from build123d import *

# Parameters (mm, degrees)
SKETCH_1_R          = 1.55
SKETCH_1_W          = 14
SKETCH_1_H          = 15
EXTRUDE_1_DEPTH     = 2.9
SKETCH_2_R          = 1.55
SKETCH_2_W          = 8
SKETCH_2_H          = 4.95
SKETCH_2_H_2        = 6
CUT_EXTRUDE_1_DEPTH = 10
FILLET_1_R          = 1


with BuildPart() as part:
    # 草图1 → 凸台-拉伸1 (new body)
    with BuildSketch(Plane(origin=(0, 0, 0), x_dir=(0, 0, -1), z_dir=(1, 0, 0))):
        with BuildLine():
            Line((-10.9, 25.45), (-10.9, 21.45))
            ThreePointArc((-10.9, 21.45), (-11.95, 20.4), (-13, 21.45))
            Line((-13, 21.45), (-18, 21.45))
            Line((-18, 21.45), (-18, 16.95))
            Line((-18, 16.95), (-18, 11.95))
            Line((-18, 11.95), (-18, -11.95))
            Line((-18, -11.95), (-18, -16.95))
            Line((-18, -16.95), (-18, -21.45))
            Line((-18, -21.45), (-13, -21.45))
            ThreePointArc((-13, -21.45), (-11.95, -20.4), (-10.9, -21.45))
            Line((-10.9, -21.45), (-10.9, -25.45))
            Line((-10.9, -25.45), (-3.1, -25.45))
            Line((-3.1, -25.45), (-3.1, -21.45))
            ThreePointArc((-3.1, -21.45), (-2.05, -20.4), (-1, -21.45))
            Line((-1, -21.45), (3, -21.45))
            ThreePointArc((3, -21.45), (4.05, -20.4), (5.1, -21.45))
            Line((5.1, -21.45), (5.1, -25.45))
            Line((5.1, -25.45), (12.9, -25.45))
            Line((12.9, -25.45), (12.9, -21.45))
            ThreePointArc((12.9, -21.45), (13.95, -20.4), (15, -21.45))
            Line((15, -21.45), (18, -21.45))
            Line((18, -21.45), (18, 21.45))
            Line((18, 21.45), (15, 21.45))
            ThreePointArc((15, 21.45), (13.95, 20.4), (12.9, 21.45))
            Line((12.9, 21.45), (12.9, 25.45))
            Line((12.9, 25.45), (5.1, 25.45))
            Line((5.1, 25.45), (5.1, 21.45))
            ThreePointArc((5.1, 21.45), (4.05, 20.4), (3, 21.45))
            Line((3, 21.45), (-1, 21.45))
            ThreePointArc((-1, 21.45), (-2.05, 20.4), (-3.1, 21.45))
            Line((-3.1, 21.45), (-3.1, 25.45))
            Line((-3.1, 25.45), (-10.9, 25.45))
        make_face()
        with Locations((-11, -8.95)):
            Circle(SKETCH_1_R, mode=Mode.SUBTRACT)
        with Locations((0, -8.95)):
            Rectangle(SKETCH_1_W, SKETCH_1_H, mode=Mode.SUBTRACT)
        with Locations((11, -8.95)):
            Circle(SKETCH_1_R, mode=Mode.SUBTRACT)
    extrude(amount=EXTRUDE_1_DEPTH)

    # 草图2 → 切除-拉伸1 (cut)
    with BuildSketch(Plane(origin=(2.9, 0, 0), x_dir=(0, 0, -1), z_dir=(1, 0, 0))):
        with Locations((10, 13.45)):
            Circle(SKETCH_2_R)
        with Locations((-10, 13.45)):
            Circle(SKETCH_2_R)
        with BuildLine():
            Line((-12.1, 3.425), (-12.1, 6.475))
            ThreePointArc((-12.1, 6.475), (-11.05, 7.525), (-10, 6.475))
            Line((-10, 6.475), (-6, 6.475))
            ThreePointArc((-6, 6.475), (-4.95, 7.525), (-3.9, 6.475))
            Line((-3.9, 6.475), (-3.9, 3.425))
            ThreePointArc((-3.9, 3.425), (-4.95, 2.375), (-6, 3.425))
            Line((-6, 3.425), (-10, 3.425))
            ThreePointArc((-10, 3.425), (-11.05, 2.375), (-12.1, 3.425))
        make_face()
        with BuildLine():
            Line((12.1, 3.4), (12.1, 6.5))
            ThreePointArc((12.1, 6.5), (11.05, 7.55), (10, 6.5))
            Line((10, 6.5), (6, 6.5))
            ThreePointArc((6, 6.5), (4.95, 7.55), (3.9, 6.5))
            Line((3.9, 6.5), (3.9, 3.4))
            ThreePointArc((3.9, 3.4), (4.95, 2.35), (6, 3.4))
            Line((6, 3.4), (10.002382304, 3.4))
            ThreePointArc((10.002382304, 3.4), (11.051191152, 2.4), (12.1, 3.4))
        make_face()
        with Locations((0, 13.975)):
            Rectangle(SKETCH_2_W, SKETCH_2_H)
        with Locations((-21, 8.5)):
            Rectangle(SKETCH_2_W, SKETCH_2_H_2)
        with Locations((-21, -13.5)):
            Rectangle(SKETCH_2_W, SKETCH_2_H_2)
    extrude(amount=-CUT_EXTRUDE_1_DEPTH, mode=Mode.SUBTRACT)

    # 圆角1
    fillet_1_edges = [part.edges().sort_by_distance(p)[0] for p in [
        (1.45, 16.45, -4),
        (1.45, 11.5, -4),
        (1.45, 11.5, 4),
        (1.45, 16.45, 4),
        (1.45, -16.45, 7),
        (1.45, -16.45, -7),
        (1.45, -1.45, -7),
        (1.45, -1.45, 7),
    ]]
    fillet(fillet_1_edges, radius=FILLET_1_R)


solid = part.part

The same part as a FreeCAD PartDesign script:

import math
import FreeCAD as App
import Part
import Sketcher
from FreeCAD import Vector


def edges_at(feature, points):
    """Names of the edges that pass closest to the given points."""
    edges = feature.Shape.Edges
    near = lambda p: min(range(len(edges)), key=lambda i: edges[i].distToShape(Part.Vertex(*p))[0])
    return sorted({f"Edge{near(p) + 1}" for p in points})

doc = App.newDocument("Part")
body = doc.addObject("PartDesign::Body", "Body")

# Sketch on YZ plane
sketch1 = body.newObject("Sketcher::SketchObject", "Sketch")
sketch1.AttachmentSupport = (doc.getObject("YZ_Plane"), [""])
sketch1.MapMode = "FlatFace"
sketch1.addGeometry(Part.LineSegment(Vector(25.4, 10.9, 0), Vector(21.4, 10.9, 0)), False)
sketch1.addGeometry(Part.ArcOfCircle(Part.Circle(Vector(21.4, 11.9, 0), Vector(0, 0, 1), 1.1), math.radians(90), math.radians(270)), False)
sketch1.addGeometry(Part.LineSegment(Vector(21.4, 13, 0), Vector(21.4, 18, 0)), False)
sketch1.addGeometry(Part.LineSegment(Vector(21.4, 18, 0), Vector(-21.4, 18, 0)), False)
sketch1.addGeometry(Part.LineSegment(Vector(-21.4, 18, 0), Vector(-21.4, 13, 0)), False)
sketch1.addGeometry(Part.ArcOfCircle(Part.Circle(Vector(-21.4, 11.9, 0), Vector(0, 0, 1), 1.1), math.radians(-90), math.radians(90)), False)
sketch1.addGeometry(Part.LineSegment(Vector(-21.4, 10.9, 0), Vector(-25.4, 10.9, 0)), False)
sketch1.addGeometry(Part.LineSegment(Vector(-25.4, 10.9, 0), Vector(-25.4, 3.1, 0)), False)
sketch1.addGeometry(Part.LineSegment(Vector(-25.4, 3.1, 0), Vector(-21.4, 3.1, 0)), False)
sketch1.addGeometry(Part.ArcOfCircle(Part.Circle(Vector(-21.4, 2, 0), Vector(0, 0, 1), 1.1), math.radians(-90), math.radians(90)), False)
sketch1.addGeometry(Part.LineSegment(Vector(-21.4, 1, 0), Vector(-21.4, -3, 0)), False)
sketch1.addGeometry(Part.ArcOfCircle(Part.Circle(Vector(-21.4, -4, 0), Vector(0, 0, 1), 1.1), math.radians(-90), math.radians(90)), False)
sketch1.addGeometry(Part.LineSegment(Vector(-21.4, -5.1, 0), Vector(-25.4, -5.1, 0)), False)
sketch1.addGeometry(Part.LineSegment(Vector(-25.4, -5.1, 0), Vector(-25.4, -12.9, 0)), False)
sketch1.addGeometry(Part.LineSegment(Vector(-25.4, -12.9, 0), Vector(-21.4, -12.9, 0)), False)
sketch1.addGeometry(Part.ArcOfCircle(Part.Circle(Vector(-21.4, -13.9, 0), Vector(0, 0, 1), 1.1), math.radians(-90), math.radians(90)), False)
sketch1.addGeometry(Part.LineSegment(Vector(-21.4, -15, 0), Vector(-21.4, -18, 0)), False)
sketch1.addGeometry(Part.LineSegment(Vector(-21.4, -18, 0), Vector(21.4, -18, 0)), False)
sketch1.addGeometry(Part.LineSegment(Vector(21.4, -18, 0), Vector(21.4, -15, 0)), False)
sketch1.addGeometry(Part.ArcOfCircle(Part.Circle(Vector(21.4, -13.9, 0), Vector(0, 0, 1), 1.1), math.radians(90), math.radians(270)), False)
sketch1.addGeometry(Part.LineSegment(Vector(21.4, -12.9, 0), Vector(25.4, -12.9, 0)), False)
sketch1.addGeometry(Part.LineSegment(Vector(25.4, -12.9, 0), Vector(25.4, -5.1, 0)), False)
sketch1.addGeometry(Part.LineSegment(Vector(25.4, -5.1, 0), Vector(21.4, -5.1, 0)), False)
sketch1.addGeometry(Part.ArcOfCircle(Part.Circle(Vector(21.4, -4, 0), Vector(0, 0, 1), 1.1), math.radians(90), math.radians(270)), False)
sketch1.addGeometry(Part.LineSegment(Vector(21.4, -3, 0), Vector(21.4, 1, 0)), False)
sketch1.addGeometry(Part.ArcOfCircle(Part.Circle(Vector(21.4, 2, 0), Vector(0, 0, 1), 1.1), math.radians(90), math.radians(270)), False)
sketch1.addGeometry(Part.LineSegment(Vector(21.4, 3.1, 0), Vector(25.4, 3.1, 0)), False)
sketch1.addGeometry(Part.LineSegment(Vector(25.4, 3.1, 0), Vector(25.4, 10.9, 0)), False)
sketch1.addGeometry(Part.Circle(Vector(-8.9, 11, 0), Vector(0, 0, 1), 1.6), False)
sketch1.addGeometry(Part.LineSegment(Vector(-16.4, -7, 0), Vector(-16.4, 7, 0)), False)
sketch1.addGeometry(Part.LineSegment(Vector(-16.4, 7, 0), Vector(-1.4, 7, 0)), False)
sketch1.addGeometry(Part.LineSegment(Vector(-1.4, 7, 0), Vector(-1.4, -7, 0)), False)
sketch1.addGeometry(Part.LineSegment(Vector(-1.4, -7, 0), Vector(-16.4, -7, 0)), False)
sketch1.addGeometry(Part.Circle(Vector(-8.9, -11, 0), Vector(0, 0, 1), 1.6), False)
sketch1.addConstraint(Sketcher.Constraint("Tangent", 0, 2, 1, 2))
sketch1.addConstraint(Sketcher.Constraint("Coincident", 1, 1, 2, 1))
sketch1.addConstraint(Sketcher.Constraint("Coincident", 2, 2, 3, 1))
sketch1.addConstraint(Sketcher.Constraint("Coincident", 3, 2, 4, 1))
sketch1.addConstraint(Sketcher.Constraint("Coincident", 4, 2, 5, 2))
sketch1.addConstraint(Sketcher.Constraint("Tangent", 5, 1, 6, 1))
sketch1.addConstraint(Sketcher.Constraint("Coincident", 6, 2, 7, 1))
sketch1.addConstraint(Sketcher.Constraint("Coincident", 7, 2, 8, 1))
sketch1.addConstraint(Sketcher.Constraint("Tangent", 8, 2, 9, 2))
sketch1.addConstraint(Sketcher.Constraint("Coincident", 9, 1, 10, 1))
sketch1.addConstraint(Sketcher.Constraint("Coincident", 10, 2, 11, 2))
sketch1.addConstraint(Sketcher.Constraint("Tangent", 11, 1, 12, 1))
sketch1.addConstraint(Sketcher.Constraint("Coincident", 12, 2, 13, 1))
sketch1.addConstraint(Sketcher.Constraint("Coincident", 13, 2, 14, 1))
sketch1.addConstraint(Sketcher.Constraint("Tangent", 14, 2, 15, 2))
sketch1.addConstraint(Sketcher.Constraint("Coincident", 15, 1, 16, 1))
sketch1.addConstraint(Sketcher.Constraint("Coincident", 16, 2, 17, 1))
sketch1.addConstraint(Sketcher.Constraint("Coincident", 17, 2, 18, 1))
sketch1.addConstraint(Sketcher.Constraint("Coincident", 18, 2, 19, 2))
sketch1.addConstraint(Sketcher.Constraint("Tangent", 19, 1, 20, 1))
sketch1.addConstraint(Sketcher.Constraint("Coincident", 20, 2, 21, 1))
sketch1.addConstraint(Sketcher.Constraint("Coincident", 21, 2, 22, 1))
sketch1.addConstraint(Sketcher.Constraint("Tangent", 22, 2, 23, 2))
sketch1.addConstraint(Sketcher.Constraint("Coincident", 23, 1, 24, 1))
sketch1.addConstraint(Sketcher.Constraint("Coincident", 24, 2, 25, 2))
sketch1.addConstraint(Sketcher.Constraint("Tangent", 25, 1, 26, 1))
sketch1.addConstraint(Sketcher.Constraint("Coincident", 26, 2, 27, 1))
sketch1.addConstraint(Sketcher.Constraint("Coincident", 27, 2, 0, 1))
sketch1.addConstraint(Sketcher.Constraint("Coincident", 29, 2, 30, 1))
sketch1.addConstraint(Sketcher.Constraint("Coincident", 30, 2, 31, 1))
sketch1.addConstraint(Sketcher.Constraint("Coincident", 31, 2, 32, 1))
sketch1.addConstraint(Sketcher.Constraint("Coincident", 32, 2, 29, 1))
sketch1.addConstraint(Sketcher.Constraint("Horizontal", 0))
sketch1.addConstraint(Sketcher.Constraint("Vertical", 2))
sketch1.addConstraint(Sketcher.Constraint("Horizontal", 3))
sketch1.addConstraint(Sketcher.Constraint("Vertical", 4))
sketch1.addConstraint(Sketcher.Constraint("Horizontal", 6))
sketch1.addConstraint(Sketcher.Constraint("Vertical", 7))
sketch1.addConstraint(Sketcher.Constraint("Horizontal", 8))
sketch1.addConstraint(Sketcher.Constraint("Vertical", 10))
sketch1.addConstraint(Sketcher.Constraint("Horizontal", 12))
sketch1.addConstraint(Sketcher.Constraint("Vertical", 13))
sketch1.addConstraint(Sketcher.Constraint("Horizontal", 14))
sketch1.addConstraint(Sketcher.Constraint("Vertical", 16))
sketch1.addConstraint(Sketcher.Constraint("Horizontal", 17))
sketch1.addConstraint(Sketcher.Constraint("Vertical", 18))
sketch1.addConstraint(Sketcher.Constraint("Horizontal", 20))
sketch1.addConstraint(Sketcher.Constraint("Vertical", 21))
sketch1.addConstraint(Sketcher.Constraint("Horizontal", 22))
sketch1.addConstraint(Sketcher.Constraint("Vertical", 24))
sketch1.addConstraint(Sketcher.Constraint("Horizontal", 26))
sketch1.addConstraint(Sketcher.Constraint("Vertical", 27))
sketch1.addConstraint(Sketcher.Constraint("Vertical", 29))
sketch1.addConstraint(Sketcher.Constraint("Horizontal", 30))
sketch1.addConstraint(Sketcher.Constraint("Vertical", 31))
sketch1.addConstraint(Sketcher.Constraint("Horizontal", 32))
sketch1.addConstraint(Sketcher.Constraint("Equal", 1, 5))
sketch1.addConstraint(Sketcher.Constraint("Equal", 5, 9))
sketch1.addConstraint(Sketcher.Constraint("Equal", 9, 11))
sketch1.addConstraint(Sketcher.Constraint("Equal", 11, 15))
sketch1.addConstraint(Sketcher.Constraint("Equal", 15, 19))
sketch1.addConstraint(Sketcher.Constraint("Equal", 19, 23))
sketch1.addConstraint(Sketcher.Constraint("Equal", 23, 25))
sketch1.addConstraint(Sketcher.Constraint("Equal", 28, 33))
sketch1.addConstraint(Sketcher.Constraint("Symmetric", 2, 2, 16, 2, -1, 1))
sketch1.addConstraint(Sketcher.Constraint("Symmetric", 1, 3, 5, 3, -2))
sketch1.addConstraint(Sketcher.Constraint("Symmetric", 15, 3, 19, 3, -2))
sketch1.addConstraint(Sketcher.Constraint("Symmetric", 11, 3, 23, 3, -2))
sketch1.addConstraint(Sketcher.Constraint("Symmetric", 9, 3, 25, 3, -2))
sketch1.addConstraint(Sketcher.Constraint("Symmetric", 28, 3, 33, 3, -1))
sketch1.addConstraint(Sketcher.Constraint("Vertical", 5, 3, 9, 3))
sketch1.addConstraint(Sketcher.Constraint("Vertical", 9, 3, 11, 3))
sketch1.addConstraint(Sketcher.Constraint("Vertical", 11, 3, 15, 3))
sketch1.addConstraint(Sketcher.Constraint("Vertical", 0, 2, 1, 1))
sketch1.addConstraint(Sketcher.Constraint("Vertical", 15, 3, 3, 2))
sketch1.addConstraint(Sketcher.Constraint("Vertical", 8, 2, 9, 1))
sketch1.addConstraint(Sketcher.Constraint("Vertical", 7, 2, 12, 2))
sketch1.addConstraint(Sketcher.Constraint("Vertical", 2, 2, 17, 2))
sketch1.addConstraint(Sketcher.Constraint("Vertical", 22, 2, 23, 1))
sketch1.addConstraint(Sketcher.Constraint("Vertical", 21, 2, 26, 2))
sketch1.addConstraint(Sketcher.Constraint("Equal", 0, 6))
sketch1.addConstraint(Sketcher.Constraint("Equal", 26, 10))
sketch1.addConstraint(Sketcher.Constraint("Equal", 7, 13))
sketch1.addConstraint(Sketcher.Constraint("Diameter", 28, 3.1))
sketch1.addConstraint(Sketcher.Constraint("DistanceX", 0, 2, 0, 1, 4.0))
sketch1.addConstraint(Sketcher.Constraint("DistanceX", 30, 1, 30, 2, 15.0))
sketch1.addConstraint(Sketcher.Constraint("DistanceY", 2, 1, 2, 2, 5.0))
sketch1.addConstraint(Sketcher.Constraint("DistanceY", 16, 2, 16, 1, 3.0))
sketch1.addConstraint(Sketcher.Constraint("DistanceY", 29, 1, 29, 2, 14.0))
sketch1.addConstraint(Sketcher.Constraint("Radius", 1, 1.05))
sketch1.addConstraint(Sketcher.Constraint("DistanceX", 3, 2, 3, 1, 42.9))
sketch1.addConstraint(Sketcher.Constraint("DistanceY", 7, 2, 7, 1, 7.8))
sketch1.addConstraint(Sketcher.Constraint("DistanceY", -1, 1, 28, 3, 11.0))
sketch1.addConstraint(Sketcher.Constraint("DistanceY", -1, 1, 29, 2, 7.0))
sketch1.addConstraint(Sketcher.Constraint("DistanceX", 5, 1, 29, 2, 5.0))
sketch1.addConstraint(Sketcher.Constraint("DistanceX", 5, 3, 28, 3, 12.5))
pad1 = body.newObject("PartDesign::Pad", "Pad")
pad1.Profile = sketch1
pad1.Length = 2.9

# Sketch on YZ plane
sketch2 = body.newObject("Sketcher::SketchObject", "Sketch001")
sketch2.AttachmentSupport = (doc.getObject("YZ_Plane"), [""])
sketch2.MapMode = "FlatFace"
sketch2.AttachmentOffset = App.Placement(Vector(0, 0, 2.9), App.Rotation())
sketch2.addGeometry(Part.Circle(Vector(13.4, -10, 0), Vector(0, 0, 1), 1.6), False)
sketch2.addGeometry(Part.Circle(Vector(13.4, 10, 0), Vector(0, 0, 1), 1.6), False)
sketch2.addGeometry(Part.LineSegment(Vector(6.5, 12.1, 0), Vector(3.4, 12.1, 0)), False)
sketch2.addGeometry(Part.ArcOfCircle(Part.Circle(Vector(3.4, 11.1, 0), Vector(0, 0, 1), 1.1), math.radians(90), math.radians(270)), False)
sketch2.addGeometry(Part.LineSegment(Vector(3.4, 10, 0), Vector(3.4, 6, 0)), False)
sketch2.addGeometry(Part.ArcOfCircle(Part.Circle(Vector(3.4, 5, 0), Vector(0, 0, 1), 1.1), math.radians(90), math.radians(270)), False)
sketch2.addGeometry(Part.LineSegment(Vector(3.4, 3.9, 0), Vector(6.5, 3.9, 0)), False)
sketch2.addGeometry(Part.ArcOfCircle(Part.Circle(Vector(6.5, 5, 0), Vector(0, 0, 1), 1.1), math.radians(-90), math.radians(90)), False)
sketch2.addGeometry(Part.LineSegment(Vector(6.5, 6, 0), Vector(6.5, 10, 0)), False)
sketch2.addGeometry(Part.ArcOfCircle(Part.Circle(Vector(6.5, 11.1, 0), Vector(0, 0, 1), 1.1), math.radians(-90), math.radians(90)), False)
sketch2.addGeometry(Part.LineSegment(Vector(3.4, -12.1, 0), Vector(6.5, -12.1, 0)), False)
sketch2.addGeometry(Part.ArcOfCircle(Part.Circle(Vector(6.5, -11.1, 0), Vector(0, 0, 1), 1.1), math.radians(-90), math.radians(90)), False)
sketch2.addGeometry(Part.LineSegment(Vector(6.5, -10, 0), Vector(6.5, -6, 0)), False)
sketch2.addGeometry(Part.ArcOfCircle(Part.Circle(Vector(6.5, -5, 0), Vector(0, 0, 1), 1.1), math.radians(-90), math.radians(90)), False)
sketch2.addGeometry(Part.LineSegment(Vector(6.5, -3.9, 0), Vector(3.4, -3.9, 0)), False)
sketch2.addGeometry(Part.ArcOfCircle(Part.Circle(Vector(3.4, -5, 0), Vector(0, 0, 1), 1.1), math.radians(90), math.radians(270)), False)
sketch2.addGeometry(Part.LineSegment(Vector(3.4, -6, 0), Vector(3.4, -10, 0)), False)
sketch2.addGeometry(Part.ArcOfCircle(Part.Circle(Vector(3.5, -11.1, 0), Vector(0, 0, 1), 1.1), math.radians(93), math.radians(267)), False)
sketch2.addGeometry(Part.LineSegment(Vector(16.4, 4, 0), Vector(11.5, 4, 0)), False)
sketch2.addGeometry(Part.LineSegment(Vector(11.5, 4, 0), Vector(11.5, -4, 0)), False)
sketch2.addGeometry(Part.LineSegment(Vector(11.5, -4, 0), Vector(16.4, -4, 0)), False)
sketch2.addGeometry(Part.LineSegment(Vector(16.4, -4, 0), Vector(16.4, 4, 0)), False)
sketch2.addGeometry(Part.LineSegment(Vector(11.5, 25, 0), Vector(5.5, 25, 0)), False)
sketch2.addGeometry(Part.LineSegment(Vector(5.5, 25, 0), Vector(5.5, 17, 0)), False)
sketch2.addGeometry(Part.LineSegment(Vector(5.5, 17, 0), Vector(11.5, 17, 0)), False)
sketch2.addGeometry(Part.LineSegment(Vector(11.5, 17, 0), Vector(11.5, 25, 0)), False)
sketch2.addGeometry(Part.LineSegment(Vector(-10.5, 25, 0), Vector(-16.5, 25, 0)), False)
sketch2.addGeometry(Part.LineSegment(Vector(-16.5, 25, 0), Vector(-16.5, 17, 0)), False)
sketch2.addGeometry(Part.LineSegment(Vector(-16.5, 17, 0), Vector(-10.5, 17, 0)), False)
sketch2.addGeometry(Part.LineSegment(Vector(-10.5, 17, 0), Vector(-10.5, 25, 0)), False)
sketch2.addConstraint(Sketcher.Constraint("Tangent", 2, 2, 3, 1))
sketch2.addConstraint(Sketcher.Constraint("Coincident", 3, 2, 4, 1))
sketch2.addConstraint(Sketcher.Constraint("Coincident", 4, 2, 5, 1))
sketch2.addConstraint(Sketcher.Constraint("Tangent", 5, 2, 6, 1))
sketch2.addConstraint(Sketcher.Constraint("Tangent", 6, 2, 7, 1))
sketch2.addConstraint(Sketcher.Constraint("Coincident", 7, 2, 8, 1))
sketch2.addConstraint(Sketcher.Constraint("Coincident", 8, 2, 9, 1))
sketch2.addConstraint(Sketcher.Constraint("Tangent", 9, 2, 2, 1))
sketch2.addConstraint(Sketcher.Constraint("Tangent", 10, 2, 11, 1))
sketch2.addConstraint(Sketcher.Constraint("Coincident", 11, 2, 12, 1))
sketch2.addConstraint(Sketcher.Constraint("Coincident", 12, 2, 13, 1))
sketch2.addConstraint(Sketcher.Constraint("Tangent", 13, 2, 14, 1))
sketch2.addConstraint(Sketcher.Constraint("Tangent", 14, 2, 15, 1))
sketch2.addConstraint(Sketcher.Constraint("Coincident", 15, 2, 16, 1))
sketch2.addConstraint(Sketcher.Constraint("Coincident", 16, 2, 17, 1))
sketch2.addConstraint(Sketcher.Constraint("Coincident", 17, 2, 10, 1))
sketch2.addConstraint(Sketcher.Constraint("Coincident", 18, 2, 19, 1))
sketch2.addConstraint(Sketcher.Constraint("Coincident", 19, 2, 20, 1))
sketch2.addConstraint(Sketcher.Constraint("Coincident", 20, 2, 21, 1))
sketch2.addConstraint(Sketcher.Constraint("Coincident", 21, 2, 18, 1))
sketch2.addConstraint(Sketcher.Constraint("Coincident", 22, 2, 23, 1))
sketch2.addConstraint(Sketcher.Constraint("Coincident", 23, 2, 24, 1))
sketch2.addConstraint(Sketcher.Constraint("Coincident", 24, 2, 25, 1))
sketch2.addConstraint(Sketcher.Constraint("Coincident", 25, 2, 22, 1))
sketch2.addConstraint(Sketcher.Constraint("Coincident", 26, 2, 27, 1))
sketch2.addConstraint(Sketcher.Constraint("Coincident", 27, 2, 28, 1))
sketch2.addConstraint(Sketcher.Constraint("Coincident", 28, 2, 29, 1))
sketch2.addConstraint(Sketcher.Constraint("Coincident", 29, 2, 26, 1))
sketch2.addConstraint(Sketcher.Constraint("Horizontal", 2))
sketch2.addConstraint(Sketcher.Constraint("Vertical", 4))
sketch2.addConstraint(Sketcher.Constraint("Horizontal", 6))
sketch2.addConstraint(Sketcher.Constraint("Vertical", 8))
sketch2.addConstraint(Sketcher.Constraint("Horizontal", 10))
sketch2.addConstraint(Sketcher.Constraint("Vertical", 12))
sketch2.addConstraint(Sketcher.Constraint("Horizontal", 14))
sketch2.addConstraint(Sketcher.Constraint("Vertical", 16))
sketch2.addConstraint(Sketcher.Constraint("Horizontal", 18))
sketch2.addConstraint(Sketcher.Constraint("Vertical", 19))
sketch2.addConstraint(Sketcher.Constraint("Horizontal", 20))
sketch2.addConstraint(Sketcher.Constraint("Vertical", 21))
sketch2.addConstraint(Sketcher.Constraint("Horizontal", 22))
sketch2.addConstraint(Sketcher.Constraint("Vertical", 23))
sketch2.addConstraint(Sketcher.Constraint("Horizontal", 24))
sketch2.addConstraint(Sketcher.Constraint("Vertical", 25))
sketch2.addConstraint(Sketcher.Constraint("Horizontal", 26))
sketch2.addConstraint(Sketcher.Constraint("Vertical", 27))
sketch2.addConstraint(Sketcher.Constraint("Horizontal", 28))
sketch2.addConstraint(Sketcher.Constraint("Vertical", 29))
sketch2.addConstraint(Sketcher.Constraint("Equal", 0, 1))
sketch2.addConstraint(Sketcher.Constraint("Equal", 3, 5))
sketch2.addConstraint(Sketcher.Constraint("Equal", 5, 7))
sketch2.addConstraint(Sketcher.Constraint("Equal", 7, 9))
sketch2.addConstraint(Sketcher.Constraint("Equal", 9, 11))
sketch2.addConstraint(Sketcher.Constraint("Equal", 11, 13))
sketch2.addConstraint(Sketcher.Constraint("Equal", 13, 15))
sketch2.addConstraint(Sketcher.Constraint("Equal", 15, 17))
sketch2.addConstraint(Sketcher.Constraint("Symmetric", 0, 3, 1, 3, -1))
sketch2.addConstraint(Sketcher.Constraint("Horizontal", 1, 3, 3, 2))
sketch2.addConstraint(Sketcher.Constraint("Horizontal", 0, 3, 11, 2))
sketch2.addConstraint(Sketcher.Constraint("Horizontal", 25, 2, 26, 2))
sketch2.addConstraint(Sketcher.Constraint("Horizontal", 24, 2, 27, 2))
sketch2.addConstraint(Sketcher.Constraint("Vertical", 3, 3, 5, 3))
sketch2.addConstraint(Sketcher.Constraint("Vertical", 7, 3, 9, 3))
sketch2.addConstraint(Sketcher.Constraint("Vertical", 11, 3, 13, 3))
sketch2.addConstraint(Sketcher.Constraint("Vertical", 2, 2, 3, 2))
sketch2.addConstraint(Sketcher.Constraint("Vertical", 6, 2, 7, 2))
sketch2.addConstraint(Sketcher.Constraint("Vertical", 10, 2, 11, 2))
sketch2.addConstraint(Sketcher.Constraint("Vertical", 14, 2, 15, 2))
sketch2.addConstraint(Sketcher.Constraint("Vertical", 16, 2, 17, 2))
sketch2.addConstraint(Sketcher.Constraint("Vertical", 19, 2, 24, 2))
sketch2.addConstraint(Sketcher.Constraint("Equal", 24, 26))
sketch2.addConstraint(Sketcher.Constraint("Equal", 8, 12))
sketch2.addConstraint(Sketcher.Constraint("Equal", 21, 23))
sketch2.addConstraint(Sketcher.Constraint("Diameter", 0, 3.1))
sketch2.addConstraint(Sketcher.Constraint("DistanceX", 22, 2, 22, 1, 6.0))
sketch2.addConstraint(Sketcher.Constraint("DistanceY", 4, 2, 4, 1, 4.0))
sketch2.addConstraint(Sketcher.Constraint("DistanceY", 19, 2, 19, 1, 8.0))
sketch2.addConstraint(Sketcher.Constraint("Radius", 3, 1.05))
sketch2.addConstraint(Sketcher.Constraint("DistanceX", 10, 1, 10, 2, 3.1))
sketch2.addConstraint(Sketcher.Constraint("DistanceY", 0, 3, -1, 1, 10.0))
sketch2.addConstraint(Sketcher.Constraint("DistanceY", -1, 1, 18, 2, 4.0))
sketch2.addConstraint(Sketcher.Constraint("DistanceY", -1, 1, 22, 2, 25.0))
sketch2.addConstraint(Sketcher.Constraint("DistanceX", 17, 3, 0, 3, 10.0))
sketch2.addConstraint(Sketcher.Constraint("DistanceX", 13, 2, 19, 2, 5.0))
sketch2.addConstraint(Sketcher.Constraint("DistanceX", 0, 3, 20, 2, 3.0))
sketch2.addConstraint(Sketcher.Constraint("DistanceX", 26, 2, 22, 2, 22.0))
sketch2.addConstraint(Sketcher.Constraint("DistanceX", 2, 2, 2, 1, 3.05))
sketch2.addConstraint(Sketcher.Constraint("DistanceX", 18, 2, 18, 1, 4.95))
sketch2.addConstraint(Sketcher.Constraint("DistanceX", -1, 1, 11, 3, 6.5))
sketch2.addConstraint(Sketcher.Constraint("DistanceX", -1, 1, 3, 3, 3.425))
pocket1 = body.newObject("PartDesign::Pocket", "Pocket")
pocket1.Profile = sketch2
pocket1.Length = 10
doc.recompute()

fillet = body.newObject("PartDesign::Fillet", "Fillet")
fillet.Base = (pocket1, edges_at(pocket1, [
    (1.45, 16.45, -4),
    (1.45, 11.5, -4),
    (1.45, 11.5, 4),
    (1.45, 16.45, 4),
    (1.45, -16.45, 7),
    (1.45, -16.45, -7),
    (1.45, -1.45, -7),
    (1.45, -1.45, 7),
]))
fillet.Radius = 1

doc.recompute()
